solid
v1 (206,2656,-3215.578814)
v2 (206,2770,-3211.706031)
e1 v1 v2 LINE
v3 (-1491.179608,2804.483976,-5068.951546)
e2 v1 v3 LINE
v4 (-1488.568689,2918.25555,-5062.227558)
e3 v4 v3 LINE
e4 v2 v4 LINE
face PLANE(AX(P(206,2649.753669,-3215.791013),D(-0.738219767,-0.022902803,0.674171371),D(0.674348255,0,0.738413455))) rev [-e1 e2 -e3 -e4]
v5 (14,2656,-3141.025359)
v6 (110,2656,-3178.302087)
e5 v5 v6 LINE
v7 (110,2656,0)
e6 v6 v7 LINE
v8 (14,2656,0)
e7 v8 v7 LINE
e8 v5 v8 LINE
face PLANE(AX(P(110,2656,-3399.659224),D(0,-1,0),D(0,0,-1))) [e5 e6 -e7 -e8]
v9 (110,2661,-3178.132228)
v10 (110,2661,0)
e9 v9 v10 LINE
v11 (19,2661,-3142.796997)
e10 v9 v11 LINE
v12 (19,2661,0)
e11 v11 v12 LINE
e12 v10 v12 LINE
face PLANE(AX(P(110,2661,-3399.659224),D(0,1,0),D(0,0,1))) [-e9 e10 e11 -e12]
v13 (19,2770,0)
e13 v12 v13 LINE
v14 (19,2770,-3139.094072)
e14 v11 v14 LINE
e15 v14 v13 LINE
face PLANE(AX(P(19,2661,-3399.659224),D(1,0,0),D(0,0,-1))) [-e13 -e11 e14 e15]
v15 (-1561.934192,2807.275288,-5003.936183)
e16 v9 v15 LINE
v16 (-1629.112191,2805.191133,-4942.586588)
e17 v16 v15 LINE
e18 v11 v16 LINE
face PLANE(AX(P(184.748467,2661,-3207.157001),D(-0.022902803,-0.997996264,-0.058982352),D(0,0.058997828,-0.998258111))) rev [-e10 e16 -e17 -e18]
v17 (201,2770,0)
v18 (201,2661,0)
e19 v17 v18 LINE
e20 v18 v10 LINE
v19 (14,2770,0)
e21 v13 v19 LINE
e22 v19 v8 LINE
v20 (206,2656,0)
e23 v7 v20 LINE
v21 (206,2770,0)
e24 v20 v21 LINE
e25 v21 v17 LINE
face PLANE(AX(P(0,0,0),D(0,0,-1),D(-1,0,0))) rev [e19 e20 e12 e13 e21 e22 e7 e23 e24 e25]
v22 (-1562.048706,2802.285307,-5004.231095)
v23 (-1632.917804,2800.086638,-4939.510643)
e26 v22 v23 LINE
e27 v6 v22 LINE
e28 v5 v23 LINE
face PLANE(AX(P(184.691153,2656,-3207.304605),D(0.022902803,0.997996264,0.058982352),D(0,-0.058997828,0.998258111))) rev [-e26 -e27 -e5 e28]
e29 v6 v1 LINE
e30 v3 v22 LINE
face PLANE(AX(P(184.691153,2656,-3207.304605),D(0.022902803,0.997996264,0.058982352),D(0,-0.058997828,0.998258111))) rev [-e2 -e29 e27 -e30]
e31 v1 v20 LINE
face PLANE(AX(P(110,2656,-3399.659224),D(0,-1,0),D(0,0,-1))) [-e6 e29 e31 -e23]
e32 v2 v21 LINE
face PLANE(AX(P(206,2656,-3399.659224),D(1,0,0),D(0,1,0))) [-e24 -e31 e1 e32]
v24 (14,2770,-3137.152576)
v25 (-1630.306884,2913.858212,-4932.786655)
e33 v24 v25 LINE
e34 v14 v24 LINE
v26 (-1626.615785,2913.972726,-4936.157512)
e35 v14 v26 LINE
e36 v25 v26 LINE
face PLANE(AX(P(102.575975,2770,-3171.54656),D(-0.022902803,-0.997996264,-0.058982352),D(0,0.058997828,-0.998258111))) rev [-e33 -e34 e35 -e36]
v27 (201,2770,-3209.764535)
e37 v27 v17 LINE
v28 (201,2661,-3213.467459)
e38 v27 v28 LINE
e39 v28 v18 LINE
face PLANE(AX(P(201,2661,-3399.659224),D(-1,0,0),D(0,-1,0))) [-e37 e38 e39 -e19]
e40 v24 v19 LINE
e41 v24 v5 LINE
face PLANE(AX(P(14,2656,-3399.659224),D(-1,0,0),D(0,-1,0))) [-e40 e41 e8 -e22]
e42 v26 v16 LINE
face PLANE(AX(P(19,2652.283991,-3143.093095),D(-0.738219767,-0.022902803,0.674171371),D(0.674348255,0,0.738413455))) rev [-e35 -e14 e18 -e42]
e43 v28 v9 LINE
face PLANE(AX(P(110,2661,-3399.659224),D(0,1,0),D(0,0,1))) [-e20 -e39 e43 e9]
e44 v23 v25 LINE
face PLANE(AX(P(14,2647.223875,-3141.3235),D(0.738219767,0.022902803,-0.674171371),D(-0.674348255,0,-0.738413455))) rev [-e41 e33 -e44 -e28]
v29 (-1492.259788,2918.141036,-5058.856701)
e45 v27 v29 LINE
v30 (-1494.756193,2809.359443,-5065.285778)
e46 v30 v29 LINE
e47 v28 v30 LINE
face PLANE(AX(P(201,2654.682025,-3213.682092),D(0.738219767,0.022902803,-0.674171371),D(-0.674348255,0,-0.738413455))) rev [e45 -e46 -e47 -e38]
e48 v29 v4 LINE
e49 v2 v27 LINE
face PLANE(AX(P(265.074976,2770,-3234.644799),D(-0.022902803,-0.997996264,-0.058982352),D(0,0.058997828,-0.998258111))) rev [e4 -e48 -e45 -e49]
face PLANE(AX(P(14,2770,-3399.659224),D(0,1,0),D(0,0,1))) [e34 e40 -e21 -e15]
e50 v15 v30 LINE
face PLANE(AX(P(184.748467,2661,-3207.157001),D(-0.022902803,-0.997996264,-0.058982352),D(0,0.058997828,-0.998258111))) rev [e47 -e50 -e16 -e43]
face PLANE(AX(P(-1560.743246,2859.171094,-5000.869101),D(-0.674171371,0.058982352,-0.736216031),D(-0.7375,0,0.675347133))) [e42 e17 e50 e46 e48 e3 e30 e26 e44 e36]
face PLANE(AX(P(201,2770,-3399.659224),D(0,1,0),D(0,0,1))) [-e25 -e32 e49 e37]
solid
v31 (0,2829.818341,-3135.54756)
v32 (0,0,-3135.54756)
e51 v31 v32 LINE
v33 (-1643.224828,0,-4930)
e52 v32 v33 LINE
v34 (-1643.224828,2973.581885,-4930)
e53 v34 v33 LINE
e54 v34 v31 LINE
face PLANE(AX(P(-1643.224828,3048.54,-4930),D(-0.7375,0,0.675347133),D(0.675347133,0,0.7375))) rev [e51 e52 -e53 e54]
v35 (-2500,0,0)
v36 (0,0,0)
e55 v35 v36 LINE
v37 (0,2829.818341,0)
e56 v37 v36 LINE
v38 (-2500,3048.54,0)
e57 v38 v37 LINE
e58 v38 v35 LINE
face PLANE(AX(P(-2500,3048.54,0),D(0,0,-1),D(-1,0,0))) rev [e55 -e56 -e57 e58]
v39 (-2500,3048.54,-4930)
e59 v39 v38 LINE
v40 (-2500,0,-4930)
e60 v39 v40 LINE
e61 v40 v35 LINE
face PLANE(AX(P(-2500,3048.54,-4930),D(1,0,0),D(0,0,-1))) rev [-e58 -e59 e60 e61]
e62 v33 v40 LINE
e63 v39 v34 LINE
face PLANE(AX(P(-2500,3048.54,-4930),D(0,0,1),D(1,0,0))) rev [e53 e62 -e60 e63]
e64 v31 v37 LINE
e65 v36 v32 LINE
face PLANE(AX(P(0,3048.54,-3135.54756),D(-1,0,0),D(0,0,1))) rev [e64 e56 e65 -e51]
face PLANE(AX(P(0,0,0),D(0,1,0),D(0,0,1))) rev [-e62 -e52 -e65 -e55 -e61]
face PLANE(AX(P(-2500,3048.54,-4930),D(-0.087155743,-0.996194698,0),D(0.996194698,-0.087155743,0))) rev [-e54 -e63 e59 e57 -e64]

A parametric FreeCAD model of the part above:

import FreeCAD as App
import Part
import Sketcher

V = App.Vector
Q = App.Units.Quantity


def add_polygon(sketch, points):
    """Adds a closed chain of lines whose ends are joined by coincident constraints."""
    first, n = sketch.GeometryCount, len(points)
    for a, b in zip(points, points[1:] + points[:1]):
        sketch.addGeometry(Part.LineSegment(App.Vector(*a, 0), App.Vector(*b, 0)), False)
    for i in range(n):
        sketch.addConstraint(Sketcher.Constraint("Coincident", first + i, 2, first + (i + 1) % n, 1))

doc = App.newDocument("Part")
body = doc.addObject("PartDesign::Body", "Body")

sketch1 = body.newObject("Sketcher::SketchObject", "Sketch")
sketch1.AttachmentSupport = (doc.getObject("XZ_Plane"), [""])
sketch1.MapMode = "FlatFace"
add_polygon(sketch1, [(-2500, -4930), (-2500, 0), (0, 0), (0, -3136), (-1643, -4930)])
sketch1.addConstraint([
    Sketcher.Constraint("Vertical", 0),
    Sketcher.Constraint("Horizontal", 1),
    Sketcher.Constraint("Vertical", 2),
    Sketcher.Constraint("Horizontal", 4),
    Sketcher.Constraint("Coincident", 1, 2, -1, 1),
    Sketcher.Constraint("DistanceX", 1, 1, 1, 2, Q("2500 mm")),
    Sketcher.Constraint("DistanceY", 0, 1, 0, 2, Q("4930 mm")),
    Sketcher.Constraint("DistanceX", 4, 2, 4, 1, Q("856.775172 mm")),
    Sketcher.Constraint("DistanceY", 2, 2, 2, 1, Q("3135.54756 mm")),
])
pad1 = body.newObject("PartDesign::Pad", "Pad")
pad1.Profile = sketch1
pad1.Length = 3048.54
pad1.Reversed = True

sketch2 = body.newObject("Sketcher::SketchObject", "Sketch001")
sketch2.AttachmentSupport = (doc.getObject("XY_Plane"), [""])
sketch2.MapMode = "FlatFace"
add_polygon(sketch2, [(-2500, 3049), (0, 2830), (0, 3049)])
sketch2.addConstraint([
    Sketcher.Constraint("Vertical", 1),
    Sketcher.Constraint("Horizontal", 2),
    Sketcher.Constraint("PointOnObject", 0, 2, -2),
    Sketcher.Constraint("DistanceX", 2, 2, 2, 1, Q("2500 mm")),
    Sketcher.Constraint("Angle", 0, Q("-5 deg")),
    Sketcher.Constraint("DistanceY", -1, 1, 1, 2, Q("3048.54 mm")),
])
pocket1 = body.newObject("PartDesign::Pocket", "Pocket")
pocket1.Profile = sketch2
pocket1.Type = "ThroughAll"
body2 = doc.addObject("PartDesign::Body", "Body001")

sketch3 = body2.newObject("Sketcher::SketchObject", "Sketch002")
sketch3.AttachmentSupport = (doc.getObject("XY_Plane001"), [""])
sketch3.MapMode = "FlatFace"
add_polygon(sketch3, [(14, 2770), (14, 2656), (206, 2656), (206, 2770), (201, 2770), (201, 2661), (19, 2661), (19, 2770)])
sketch3.addConstraint([
    Sketcher.Constraint("Vertical", 0),
    Sketcher.Constraint("Horizontal", 1),
    Sketcher.Constraint("Vertical", 2),
    Sketcher.Constraint("Horizontal", 3),
    Sketcher.Constraint("Vertical", 4),
    Sketcher.Constraint("Horizontal", 5),
    Sketcher.Constraint("Vertical", 6),
    Sketcher.Constraint("Horizontal", 7),
    Sketcher.Constraint("Horizontal", 3, 2, 6, 2),
    Sketcher.Constraint("Equal", 3, 7),
    Sketcher.Constraint("DistanceX", 1, 1, 1, 2, Q("192 mm")),
    Sketcher.Constraint("DistanceX", 3, 2, 3, 1, Q("5 mm")),
    Sketcher.Constraint("DistanceY", 0, 2, 0, 1, Q("114 mm")),
    Sketcher.Constraint("DistanceY", 4, 2, 4, 1, Q("109 mm")),
    Sketcher.Constraint("DistanceX", -1, 1, 0, 2, Q("14 mm")),
    Sketcher.Constraint("DistanceY", -1, 1, 0, 2, Q("2656 mm")),
])

sketch4 = body2.newObject("Sketcher::SketchObject", "Sketch003")
sketch4.Placement = App.Placement(V(230.711126, 2637.040233, 0), App.Rotation(V(-0.996194698, 0.087155743, 0), V(0, 0, 1), V(0.087155743, 0.996194698, 0), "ZXY"))
sketch4.addGeometry([
    Part.LineSegment(V(232, 0, 0), V(232, -3136, 0)),
    Part.LineSegment(V(232, -3136, 0), V(1881, -4930, 0)),
], False)
sketch4.addConstraint([
    Sketcher.Constraint("Coincident", 0, 2, 1, 1),
    Sketcher.Constraint("Vertical", 0),
    Sketcher.Constraint("PointOnObject", 0, 1, -1),
    Sketcher.Constraint("DistanceY", 1, 2, -1, 1, Q("4929.999999 mm")),
    Sketcher.Constraint("Distance", 1, Q("2437.3993 mm")),
    Sketcher.Constraint("DistanceY", 0, 2, 0, 1, Q("3135.547559 mm")),
    Sketcher.Constraint("DistanceX", -1, 1, 0, 1, Q("231.592405 mm")),
])
doc.recompute()

additivepipe = body2.newObject("PartDesign::AdditivePipe", "AdditivePipe")
additivepipe.Profile = sketch3
additivepipe.Spine = (sketch4, ["Edge1", "Edge2"])
additivepipe.Transition = "Right corner"

doc.recompute()
